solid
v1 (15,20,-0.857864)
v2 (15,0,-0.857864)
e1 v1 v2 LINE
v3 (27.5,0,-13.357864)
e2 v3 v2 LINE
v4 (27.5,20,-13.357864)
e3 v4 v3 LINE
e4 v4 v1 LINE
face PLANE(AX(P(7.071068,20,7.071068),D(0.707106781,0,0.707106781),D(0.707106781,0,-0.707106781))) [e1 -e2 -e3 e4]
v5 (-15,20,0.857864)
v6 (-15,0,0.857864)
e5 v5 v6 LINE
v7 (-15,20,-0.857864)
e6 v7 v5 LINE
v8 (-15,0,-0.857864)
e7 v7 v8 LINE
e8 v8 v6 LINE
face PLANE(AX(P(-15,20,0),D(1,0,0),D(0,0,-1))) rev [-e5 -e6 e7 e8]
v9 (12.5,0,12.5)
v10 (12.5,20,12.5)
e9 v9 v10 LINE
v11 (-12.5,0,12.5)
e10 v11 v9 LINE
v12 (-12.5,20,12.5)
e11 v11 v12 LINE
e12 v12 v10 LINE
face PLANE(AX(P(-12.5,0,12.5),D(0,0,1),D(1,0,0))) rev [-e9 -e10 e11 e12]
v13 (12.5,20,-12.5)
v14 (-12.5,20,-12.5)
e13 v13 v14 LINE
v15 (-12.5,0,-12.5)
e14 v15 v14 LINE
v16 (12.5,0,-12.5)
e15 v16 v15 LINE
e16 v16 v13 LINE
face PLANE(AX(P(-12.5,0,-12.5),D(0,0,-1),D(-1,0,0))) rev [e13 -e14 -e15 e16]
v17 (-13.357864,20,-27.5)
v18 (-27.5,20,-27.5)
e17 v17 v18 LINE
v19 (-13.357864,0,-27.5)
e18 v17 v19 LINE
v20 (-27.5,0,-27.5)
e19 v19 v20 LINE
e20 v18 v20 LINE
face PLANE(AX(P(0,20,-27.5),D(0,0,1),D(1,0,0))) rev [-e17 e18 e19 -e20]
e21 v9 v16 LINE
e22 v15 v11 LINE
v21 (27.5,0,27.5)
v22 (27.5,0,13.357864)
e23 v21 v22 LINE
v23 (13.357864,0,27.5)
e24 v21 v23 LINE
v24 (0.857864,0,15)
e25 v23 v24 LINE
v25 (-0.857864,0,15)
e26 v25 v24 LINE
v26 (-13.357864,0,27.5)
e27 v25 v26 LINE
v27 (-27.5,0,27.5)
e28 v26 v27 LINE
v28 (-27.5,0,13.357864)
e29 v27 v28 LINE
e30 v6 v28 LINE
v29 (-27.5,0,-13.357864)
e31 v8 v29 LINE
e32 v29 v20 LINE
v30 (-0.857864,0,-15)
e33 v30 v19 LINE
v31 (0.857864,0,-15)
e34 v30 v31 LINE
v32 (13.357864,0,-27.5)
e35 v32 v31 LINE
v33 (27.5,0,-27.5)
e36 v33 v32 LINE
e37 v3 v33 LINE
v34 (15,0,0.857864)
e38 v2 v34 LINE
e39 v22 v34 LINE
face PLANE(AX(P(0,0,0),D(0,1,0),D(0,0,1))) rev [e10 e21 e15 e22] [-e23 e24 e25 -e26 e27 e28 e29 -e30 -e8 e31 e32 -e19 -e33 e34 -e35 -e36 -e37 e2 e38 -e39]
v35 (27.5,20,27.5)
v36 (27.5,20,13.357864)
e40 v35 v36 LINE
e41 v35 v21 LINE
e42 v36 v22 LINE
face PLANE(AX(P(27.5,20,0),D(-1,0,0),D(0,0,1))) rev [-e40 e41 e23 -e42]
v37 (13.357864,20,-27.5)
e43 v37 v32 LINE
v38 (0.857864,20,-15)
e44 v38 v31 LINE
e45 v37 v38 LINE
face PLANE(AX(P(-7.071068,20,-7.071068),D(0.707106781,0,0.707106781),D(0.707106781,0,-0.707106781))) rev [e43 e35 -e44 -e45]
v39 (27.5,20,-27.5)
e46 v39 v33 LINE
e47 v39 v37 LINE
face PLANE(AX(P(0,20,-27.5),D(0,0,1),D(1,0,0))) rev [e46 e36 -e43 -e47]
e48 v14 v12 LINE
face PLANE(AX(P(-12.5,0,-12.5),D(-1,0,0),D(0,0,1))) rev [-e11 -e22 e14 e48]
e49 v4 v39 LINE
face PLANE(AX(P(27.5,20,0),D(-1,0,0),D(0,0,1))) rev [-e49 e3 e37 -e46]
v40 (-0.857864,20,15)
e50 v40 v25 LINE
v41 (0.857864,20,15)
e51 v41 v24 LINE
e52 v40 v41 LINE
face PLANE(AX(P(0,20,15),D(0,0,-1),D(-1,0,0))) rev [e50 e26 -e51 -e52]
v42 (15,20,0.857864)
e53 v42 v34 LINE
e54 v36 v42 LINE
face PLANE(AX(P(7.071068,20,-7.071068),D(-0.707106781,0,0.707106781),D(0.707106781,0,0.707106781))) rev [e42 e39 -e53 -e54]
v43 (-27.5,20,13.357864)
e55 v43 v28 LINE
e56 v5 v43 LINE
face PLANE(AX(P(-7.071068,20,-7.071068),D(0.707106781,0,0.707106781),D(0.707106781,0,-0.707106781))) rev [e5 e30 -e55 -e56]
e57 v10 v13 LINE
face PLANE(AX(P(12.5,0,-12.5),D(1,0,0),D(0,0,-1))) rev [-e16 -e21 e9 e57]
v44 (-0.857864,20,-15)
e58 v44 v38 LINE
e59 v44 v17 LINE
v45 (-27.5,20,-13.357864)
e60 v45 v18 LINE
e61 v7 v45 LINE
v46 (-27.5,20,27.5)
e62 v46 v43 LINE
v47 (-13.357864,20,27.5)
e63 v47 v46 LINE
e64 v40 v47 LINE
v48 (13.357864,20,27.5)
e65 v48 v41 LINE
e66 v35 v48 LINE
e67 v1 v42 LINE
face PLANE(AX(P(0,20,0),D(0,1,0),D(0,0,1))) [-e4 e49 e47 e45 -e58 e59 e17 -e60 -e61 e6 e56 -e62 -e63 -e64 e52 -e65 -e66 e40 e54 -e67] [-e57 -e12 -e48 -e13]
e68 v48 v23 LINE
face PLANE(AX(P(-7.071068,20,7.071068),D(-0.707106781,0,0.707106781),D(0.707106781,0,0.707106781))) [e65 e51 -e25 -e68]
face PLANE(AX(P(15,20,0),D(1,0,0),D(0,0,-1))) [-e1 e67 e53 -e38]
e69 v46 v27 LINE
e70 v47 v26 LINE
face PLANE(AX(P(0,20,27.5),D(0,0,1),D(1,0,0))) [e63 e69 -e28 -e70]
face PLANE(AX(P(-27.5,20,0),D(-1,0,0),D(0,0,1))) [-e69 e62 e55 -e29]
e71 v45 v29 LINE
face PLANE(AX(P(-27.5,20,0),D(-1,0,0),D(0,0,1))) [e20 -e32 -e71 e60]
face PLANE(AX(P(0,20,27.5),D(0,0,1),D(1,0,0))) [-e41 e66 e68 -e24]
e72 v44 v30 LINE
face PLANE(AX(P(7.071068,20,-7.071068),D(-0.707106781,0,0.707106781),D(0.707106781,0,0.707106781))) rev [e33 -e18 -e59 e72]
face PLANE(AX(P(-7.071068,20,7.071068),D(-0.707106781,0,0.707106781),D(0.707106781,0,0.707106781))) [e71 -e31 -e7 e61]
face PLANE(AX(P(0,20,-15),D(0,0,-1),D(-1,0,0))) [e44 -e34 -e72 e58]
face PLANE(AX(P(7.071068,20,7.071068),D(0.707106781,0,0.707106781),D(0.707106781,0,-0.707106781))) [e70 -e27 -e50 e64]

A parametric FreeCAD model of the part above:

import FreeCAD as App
import Part
import Sketcher


def add_polygon(sketch, points):
    """Adds a closed chain of lines whose ends are joined by coincident constraints."""
    first, n = sketch.GeometryCount, len(points)
    for a, b in zip(points, points[1:] + points[:1]):
        sketch.addGeometry(Part.LineSegment(App.Vector(*a, 0), App.Vector(*b, 0)), False)
    for i in range(n):
        sketch.addConstraint(Sketcher.Constraint("Coincident", first + i, 2, first + (i + 1) % n, 1))

doc = App.newDocument("Part")
body = doc.addObject("PartDesign::Body", "Body")

sketch1 = body.newObject("Sketcher::SketchObject", "Sketch")
sketch1.AttachmentSupport = (doc.getObject("XZ_Plane"), [""])
sketch1.MapMode = "FlatFace"
add_polygon(sketch1, [(27.5, 27.5), (27.5, 13.357864), (15, 0.857864), (15, -0.857864), (27.5, -13.357864), (27.5, -27.5), (13.357864, -27.5), (0.857864, -15), (-0.857864, -15), (-13.357864, -27.5), (-27.5, -27.5), (-27.5, -13.357864), (-15, -0.857864), (-15, 0.857864), (-27.5, 13.357864), (-27.5, 27.5), (-13.357864, 27.5), (-0.857864, 15), (0.857864, 15), (13.357864, 27.5)])
sketch1.addConstraint([
    Sketcher.Constraint("Vertical", 0),
    Sketcher.Constraint("Vertical", 2),
    Sketcher.Constraint("Vertical", 4),
    Sketcher.Constraint("Horizontal", 5),
    Sketcher.Constraint("Horizontal", 7),
    Sketcher.Constraint("Horizontal", 9),
    Sketcher.Constraint("Vertical", 10),
    Sketcher.Constraint("Vertical", 12),
    Sketcher.Constraint("Vertical", 14),
    Sketcher.Constraint("Horizontal", 15),
    Sketcher.Constraint("Horizontal", 17),
    Sketcher.Constraint("Horizontal", 19),
    Sketcher.Constraint("Symmetric", 0, 2, 10, 2, -1, 1),
    Sketcher.Constraint("Symmetric", 1, 2, 11, 2, -1, 1),
    Sketcher.Constraint("Symmetric", 3, 2, 13, 2, -1, 1),
    Sketcher.Constraint("Symmetric", 5, 2, 15, 2, -1, 1),
    Sketcher.Constraint("Symmetric", 6, 2, 16, 2, -1, 1),
    Sketcher.Constraint("Symmetric", 8, 2, 18, 2, -1, 1),
    Sketcher.Constraint("Symmetric", 5, 2, 8, 2, -2),
    Sketcher.Constraint("Symmetric", 3, 2, 10, 2, -2),
    Sketcher.Constraint("Perpendicular", 1, 3),
    Sketcher.Constraint("Parallel", 3, 6),
    Sketcher.Constraint("Perpendicular", 6, 8),
    Sketcher.Constraint("Perpendicular", 11, 13),
    Sketcher.Constraint("Perpendicular", 16, 18),
    Sketcher.Constraint("Horizontal", 2, 2, 11, 2),
    Sketcher.Constraint("Equal", 19, 0),
    Sketcher.Constraint("Equal", 17, 2),
    Sketcher.Constraint("Equal", 3, 6),
    Sketcher.Constraint("DistanceX", -1, 1, 1, 2, 15.0),
    Sketcher.Constraint("DistanceX", -1, 1, 0, 2, 27.5),
    Sketcher.Constraint("DistanceX", 7, 2, 7, 1, 1.715729),
])
pad1 = body.newObject("PartDesign::Pad", "Pad")
pad1.Profile = sketch1
pad1.Length = 20
pad1.Reversed = True

sketch2 = body.newObject("Sketcher::SketchObject", "Sketch001")
sketch2.AttachmentSupport = (doc.getObject("XZ_Plane"), [""])
sketch2.MapMode = "FlatFace"
sketch2.AttachmentOffset = App.Placement(App.Vector(0, 0, -20), App.Rotation())
add_polygon(sketch2, [(-12.5, -12.5), (-12.5, 12.5), (12.5, 12.5), (12.5, -12.5)])
sketch2.addConstraint([
    Sketcher.Constraint("Vertical", 0),
    Sketcher.Constraint("Horizontal", 1),
    Sketcher.Constraint("Vertical", 2),
    Sketcher.Constraint("Horizontal", 3),
    Sketcher.Constraint("Symmetric", 0, 2, 2, 2, -1, 1),
    Sketcher.Constraint("Equal", 3, 0),
    Sketcher.Constraint("DistanceX", 1, 1, 1, 2, 25.0),
])
pocket1 = body.newObject("PartDesign::Pocket", "Pocket")
pocket1.Profile = sketch2
pocket1.Type = "ThroughAll"
pocket1.Reversed = True

doc.recompute()
